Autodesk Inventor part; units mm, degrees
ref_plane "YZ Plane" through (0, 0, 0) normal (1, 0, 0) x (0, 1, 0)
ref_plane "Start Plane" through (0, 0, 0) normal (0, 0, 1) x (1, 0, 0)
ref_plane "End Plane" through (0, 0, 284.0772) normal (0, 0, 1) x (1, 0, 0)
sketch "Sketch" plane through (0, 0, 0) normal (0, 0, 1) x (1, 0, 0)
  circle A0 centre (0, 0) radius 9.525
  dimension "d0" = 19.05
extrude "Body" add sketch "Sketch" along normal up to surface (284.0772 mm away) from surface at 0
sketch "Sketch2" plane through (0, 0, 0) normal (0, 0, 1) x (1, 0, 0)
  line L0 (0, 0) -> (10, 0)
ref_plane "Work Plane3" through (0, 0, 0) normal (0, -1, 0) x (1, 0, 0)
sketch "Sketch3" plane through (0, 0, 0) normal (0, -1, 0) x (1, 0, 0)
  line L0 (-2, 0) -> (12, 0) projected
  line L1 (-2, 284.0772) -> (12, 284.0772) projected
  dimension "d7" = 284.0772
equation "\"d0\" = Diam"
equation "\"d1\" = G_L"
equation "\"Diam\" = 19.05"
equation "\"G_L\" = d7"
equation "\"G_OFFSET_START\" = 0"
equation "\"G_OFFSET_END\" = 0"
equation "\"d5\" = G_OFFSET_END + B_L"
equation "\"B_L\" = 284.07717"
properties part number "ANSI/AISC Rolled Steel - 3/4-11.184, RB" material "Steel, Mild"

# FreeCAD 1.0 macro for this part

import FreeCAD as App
import Part
import Sketcher
from FreeCAD import Vector
Q = App.Units.Quantity

doc = App.newDocument("Part")
body = doc.addObject("PartDesign::Body", "Body")

# Sketch on XY plane
sketch1 = doc.addObject("Sketcher::SketchObject", "Sketch")
body.addObject(sketch1)
sketch1.AttachmentSupport = (doc.XY_Plane, [""])
sketch1.MapMode = "FlatFace"
sketch1.addGeometry(Part.Circle(Vector(0, 0, 0), Vector(0, 0, 1), 10), False)
sketch1.addConstraint(Sketcher.Constraint("Coincident", 0, 3, -1, 1))
sketch1.addConstraint(Sketcher.Constraint("Diameter", 0, Q("0.75 in")))
pad1 = doc.addObject("PartDesign::Pad", "Pad")
body.addObject(pad1)
pad1.Profile = sketch1
pad1.Length = 284.0772

doc.recompute()
